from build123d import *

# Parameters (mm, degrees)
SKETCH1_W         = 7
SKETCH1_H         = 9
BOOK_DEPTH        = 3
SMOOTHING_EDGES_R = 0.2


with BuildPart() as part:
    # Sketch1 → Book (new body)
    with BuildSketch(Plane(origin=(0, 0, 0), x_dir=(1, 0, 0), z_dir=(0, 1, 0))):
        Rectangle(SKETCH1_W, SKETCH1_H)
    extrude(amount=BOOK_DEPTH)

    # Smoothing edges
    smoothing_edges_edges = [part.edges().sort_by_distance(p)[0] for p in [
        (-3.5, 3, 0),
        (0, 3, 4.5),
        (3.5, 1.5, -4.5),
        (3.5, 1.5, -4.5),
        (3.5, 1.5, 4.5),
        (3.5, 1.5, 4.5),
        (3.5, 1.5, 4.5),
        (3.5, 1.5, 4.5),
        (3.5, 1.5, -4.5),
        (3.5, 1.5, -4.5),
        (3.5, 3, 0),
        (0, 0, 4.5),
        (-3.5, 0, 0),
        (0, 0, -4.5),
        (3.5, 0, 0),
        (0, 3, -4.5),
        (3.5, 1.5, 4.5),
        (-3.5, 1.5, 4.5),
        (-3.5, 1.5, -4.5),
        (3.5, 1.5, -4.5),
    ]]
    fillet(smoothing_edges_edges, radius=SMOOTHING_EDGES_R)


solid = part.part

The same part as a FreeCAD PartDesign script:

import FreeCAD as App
import Part
import Sketcher
from FreeCAD import Vector
Q = App.Units.Quantity

doc = App.newDocument("Part")
body = doc.addObject("PartDesign::Body", "Body")

# Sketch on XZ plane
sketch1 = doc.addObject("Sketcher::SketchObject", "Sketch")
body.addObject(sketch1)
sketch1.AttachmentSupport = (doc.XZ_Plane, [""])
sketch1.MapMode = "FlatFace"
sketch1.addGeometry([
    Part.LineSegment(Vector(-4, -4, 0), Vector(-4, 4, 0)),
    Part.LineSegment(Vector(-4, 4, 0), Vector(4, 4, 0)),
    Part.LineSegment(Vector(4, 4, 0), Vector(4, -4, 0)),
    Part.LineSegment(Vector(4, -4, 0), Vector(-4, -4, 0)),
], False)
sketch1.addConstraint([
    Sketcher.Constraint("Coincident", 0, 2, 1, 1),
    Sketcher.Constraint("Coincident", 1, 2, 2, 1),
    Sketcher.Constraint("Coincident", 2, 2, 3, 1),
    Sketcher.Constraint("Coincident", 3, 2, 0, 1),
    Sketcher.Constraint("Vertical", 0),
    Sketcher.Constraint("Horizontal", 1),
    Sketcher.Constraint("Vertical", 2),
    Sketcher.Constraint("Horizontal", 3),
    Sketcher.Constraint("Symmetric", 0, 2, 2, 2, -1, 1),
    Sketcher.Constraint("DistanceX", 1, 1, 1, 2, Q("7 mm")),
    Sketcher.Constraint("DistanceY", 0, 1, 0, 2, Q("9 mm")),
])
pad1 = doc.addObject("PartDesign::Pad", "Pad")
body.addObject(pad1)
pad1.Profile = sketch1
pad1.Length = 3
pad1.Reversed = True
doc.recompute()

fillet = doc.addObject("PartDesign::Fillet", "Fillet")
body.addObject(fillet)
fillet.Base = (pad1, ["Edge1"])
fillet.UseAllEdges = True
fillet.Radius = 0.2

doc.recompute()
